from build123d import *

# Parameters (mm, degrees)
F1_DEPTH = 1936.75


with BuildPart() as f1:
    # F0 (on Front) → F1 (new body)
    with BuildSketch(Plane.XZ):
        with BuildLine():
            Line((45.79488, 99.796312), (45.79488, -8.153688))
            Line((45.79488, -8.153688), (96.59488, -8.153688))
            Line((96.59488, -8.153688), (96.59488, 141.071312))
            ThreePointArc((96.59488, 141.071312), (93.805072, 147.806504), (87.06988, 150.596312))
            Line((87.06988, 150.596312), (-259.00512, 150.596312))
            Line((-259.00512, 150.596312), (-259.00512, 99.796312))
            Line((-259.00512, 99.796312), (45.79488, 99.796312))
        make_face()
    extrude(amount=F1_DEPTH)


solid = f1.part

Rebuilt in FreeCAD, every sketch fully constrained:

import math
import FreeCAD as App
import Part
import Sketcher
from FreeCAD import Vector
Q = App.Units.Quantity

doc = App.newDocument("Part")
body = doc.addObject("PartDesign::Body", "Body")

sketch1 = body.newObject("Sketcher::SketchObject", "Sketch")
sketch1.AttachmentSupport = (doc.getObject("XZ_Plane"), [""])
sketch1.MapMode = "FlatFace"
sketch1.addGeometry([
    Part.LineSegment(Vector(46, 100, 0), Vector(46, -8, 0)),
    Part.LineSegment(Vector(46, -8, 0), Vector(97, -8, 0)),
    Part.LineSegment(Vector(97, -8, 0), Vector(97, 141, 0)),
    Part.ArcOfCircle(Part.Circle(Vector(87, 141, 0), Vector(0, 0, 1), 10), math.radians(0), math.radians(90)),
    Part.LineSegment(Vector(87, 151, 0), Vector(-259, 151, 0)),
    Part.LineSegment(Vector(-259, 151, 0), Vector(-259, 100, 0)),
    Part.LineSegment(Vector(-259, 100, 0), Vector(46, 100, 0)),
], False)
sketch1.addConstraint([
    Sketcher.Constraint("Coincident", 0, 2, 1, 1),
    Sketcher.Constraint("Coincident", 1, 2, 2, 1),
    Sketcher.Constraint("Tangent", 2, 2, 3, 1),
    Sketcher.Constraint("Tangent", 3, 2, 4, 1),
    Sketcher.Constraint("Coincident", 4, 2, 5, 1),
    Sketcher.Constraint("Coincident", 5, 2, 6, 1),
    Sketcher.Constraint("Coincident", 6, 2, 0, 1),
    Sketcher.Constraint("Vertical", 0),
    Sketcher.Constraint("Horizontal", 1),
    Sketcher.Constraint("Vertical", 2),
    Sketcher.Constraint("Horizontal", 4),
    Sketcher.Constraint("Vertical", 5),
    Sketcher.Constraint("Horizontal", 6),
    Sketcher.Constraint("Equal", 1, 5),
    Sketcher.Constraint("DistanceX", 1, 1, 1, 2, Q("2 in")),
    Sketcher.Constraint("DistanceX", 6, 1, 6, 2, Q("12 in")),
    Sketcher.Constraint("Radius", 3, Q("0.375 in")),
    Sketcher.Constraint("DistanceY", 0, 2, 0, 1, Q("4.25 in")),
    Sketcher.Constraint("DistanceX", -1, 1, 3, 3, Q("87.06988 mm")),
    Sketcher.Constraint("DistanceY", -1, 1, 3, 3, Q("141.071312 mm")),
])
pad1 = body.newObject("PartDesign::Pad", "Pad")
pad1.Profile = sketch1
pad1.Length = Q("76.25 in")

doc.recompute()
